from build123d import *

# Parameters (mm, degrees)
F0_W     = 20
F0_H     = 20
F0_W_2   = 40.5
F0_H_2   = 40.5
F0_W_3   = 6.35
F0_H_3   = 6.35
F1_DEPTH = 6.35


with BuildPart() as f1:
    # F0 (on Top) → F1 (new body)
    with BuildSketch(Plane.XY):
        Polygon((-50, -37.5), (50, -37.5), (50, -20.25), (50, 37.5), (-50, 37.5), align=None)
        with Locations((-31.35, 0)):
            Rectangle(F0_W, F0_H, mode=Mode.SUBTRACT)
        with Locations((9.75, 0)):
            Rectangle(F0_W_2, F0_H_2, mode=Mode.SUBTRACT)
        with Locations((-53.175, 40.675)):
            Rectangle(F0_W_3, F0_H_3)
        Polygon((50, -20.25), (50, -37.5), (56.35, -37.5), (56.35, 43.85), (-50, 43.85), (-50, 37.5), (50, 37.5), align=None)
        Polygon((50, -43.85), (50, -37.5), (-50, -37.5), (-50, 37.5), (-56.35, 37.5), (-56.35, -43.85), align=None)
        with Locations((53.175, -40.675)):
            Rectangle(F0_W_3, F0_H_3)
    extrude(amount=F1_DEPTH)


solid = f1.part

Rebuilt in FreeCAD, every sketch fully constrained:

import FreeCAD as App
import Part
import Sketcher
from FreeCAD import Vector
Q = App.Units.Quantity

doc = App.newDocument("Part")
params = doc.addObject("Spreadsheet::Sheet", "Params")
for row, (alias, value) in enumerate([
    ("sketch1_width", "20 mm"),
    ("sketch1_width2", "112.7 mm"),
    ("sketch1_width3", "40.5 mm"),
    ("sketch1_height", "87.7 mm"),
    ("pad1_length", "6.35 mm"),
], start=1):
    params.set(f"A{row}", alias)
    params.set(f"B{row}", "=" + value)
    params.setAlias(f"B{row}", alias)

body = doc.addObject("PartDesign::Body", "Body")

# Sketch on XY plane
sketch1 = body.newObject("Sketcher::SketchObject", "Sketch")
sketch1.AttachmentSupport = (doc.getObject("XY_Plane"), [""])
sketch1.MapMode = "FlatFace"
sketch1.addGeometry([
    Part.LineSegment(Vector(56, 44, 0), Vector(-56, 44, 0)),  # 0
    Part.LineSegment(Vector(-56, 44, 0), Vector(-56, -44, 0)),  # 1
    Part.LineSegment(Vector(-56, -44, 0), Vector(56, -44, 0)),  # 2
    Part.LineSegment(Vector(56, -44, 0), Vector(56, 44, 0)),  # 3
    Part.LineSegment(Vector(-21, -10, 0), Vector(-41, -10, 0)),  # 4
    Part.LineSegment(Vector(-41, -10, 0), Vector(-41, 10, 0)),  # 5
    Part.LineSegment(Vector(-41, 10, 0), Vector(-21, 10, 0)),  # 6
    Part.LineSegment(Vector(-21, 10, 0), Vector(-21, -10, 0)),  # 7
    Part.LineSegment(Vector(30, -20, 0), Vector(-10, -20, 0)),  # 8
    Part.LineSegment(Vector(-10, -20, 0), Vector(-10, 20, 0)),  # 9
    Part.LineSegment(Vector(-10, 20, 0), Vector(30, 20, 0)),  # 10
    Part.LineSegment(Vector(30, 20, 0), Vector(30, -20, 0)),  # 11
], False)
sketch1.addConstraint([
    Sketcher.Constraint("Coincident", 0, 2, 1, 1),
    Sketcher.Constraint("Coincident", 1, 2, 2, 1),
    Sketcher.Constraint("Coincident", 2, 2, 3, 1),
    Sketcher.Constraint("Coincident", 3, 2, 0, 1),
    Sketcher.Constraint("Coincident", 4, 2, 5, 1),
    Sketcher.Constraint("Coincident", 5, 2, 6, 1),
    Sketcher.Constraint("Coincident", 6, 2, 7, 1),
    Sketcher.Constraint("Coincident", 7, 2, 4, 1),
    Sketcher.Constraint("Coincident", 8, 2, 9, 1),
    Sketcher.Constraint("Coincident", 9, 2, 10, 1),
    Sketcher.Constraint("Coincident", 10, 2, 11, 1),
    Sketcher.Constraint("Coincident", 11, 2, 8, 1),
    Sketcher.Constraint("Horizontal", 0),
    Sketcher.Constraint("Vertical", 1),
    Sketcher.Constraint("Horizontal", 2),
    Sketcher.Constraint("Vertical", 3),
    Sketcher.Constraint("Horizontal", 4),
    Sketcher.Constraint("Vertical", 5),
    Sketcher.Constraint("Horizontal", 6),
    Sketcher.Constraint("Vertical", 7),
    Sketcher.Constraint("Horizontal", 8),
    Sketcher.Constraint("Vertical", 9),
    Sketcher.Constraint("Horizontal", 10),
    Sketcher.Constraint("Vertical", 11),
    Sketcher.Constraint("Symmetric", 0, 2, 2, 2, -1, 1),
    Sketcher.Constraint("Equal", 6, 5),
    Sketcher.Constraint("Equal", 10, 9),
    Sketcher.Constraint("DistanceX", 4, 2, 4, 1, Q("20 mm")),
    Sketcher.Constraint("DistanceX", 0, 2, 0, 1, Q("112.7 mm")),
    Sketcher.Constraint("DistanceX", 8, 2, 8, 1, Q("40.5 mm")),
    Sketcher.Constraint("DistanceY", 1, 2, 1, 1, Q("87.7 mm")),
    Sketcher.Constraint("DistanceY", 4, 2, -1, 1, Q("10 mm")),
    Sketcher.Constraint("DistanceX", -1, 1, 10, 2, Q("30 mm")),
    Sketcher.Constraint("DistanceX", 1, 2, 4, 2, Q("15 mm")),
    Sketcher.Constraint("DistanceY", 1, 2, 8, 2, Q("23.6 mm")),
])
sketch1.setExpression("Constraints[27]", "Params.sketch1_width")
sketch1.setExpression("Constraints[28]", "Params.sketch1_width2")
sketch1.setExpression("Constraints[29]", "Params.sketch1_width3")
sketch1.setExpression("Constraints[30]", "Params.sketch1_height")
pad1 = body.newObject("PartDesign::Pad", "Pad")
pad1.Profile = sketch1
pad1.setExpression("Length", "Params.pad1_length")

doc.recompute()
